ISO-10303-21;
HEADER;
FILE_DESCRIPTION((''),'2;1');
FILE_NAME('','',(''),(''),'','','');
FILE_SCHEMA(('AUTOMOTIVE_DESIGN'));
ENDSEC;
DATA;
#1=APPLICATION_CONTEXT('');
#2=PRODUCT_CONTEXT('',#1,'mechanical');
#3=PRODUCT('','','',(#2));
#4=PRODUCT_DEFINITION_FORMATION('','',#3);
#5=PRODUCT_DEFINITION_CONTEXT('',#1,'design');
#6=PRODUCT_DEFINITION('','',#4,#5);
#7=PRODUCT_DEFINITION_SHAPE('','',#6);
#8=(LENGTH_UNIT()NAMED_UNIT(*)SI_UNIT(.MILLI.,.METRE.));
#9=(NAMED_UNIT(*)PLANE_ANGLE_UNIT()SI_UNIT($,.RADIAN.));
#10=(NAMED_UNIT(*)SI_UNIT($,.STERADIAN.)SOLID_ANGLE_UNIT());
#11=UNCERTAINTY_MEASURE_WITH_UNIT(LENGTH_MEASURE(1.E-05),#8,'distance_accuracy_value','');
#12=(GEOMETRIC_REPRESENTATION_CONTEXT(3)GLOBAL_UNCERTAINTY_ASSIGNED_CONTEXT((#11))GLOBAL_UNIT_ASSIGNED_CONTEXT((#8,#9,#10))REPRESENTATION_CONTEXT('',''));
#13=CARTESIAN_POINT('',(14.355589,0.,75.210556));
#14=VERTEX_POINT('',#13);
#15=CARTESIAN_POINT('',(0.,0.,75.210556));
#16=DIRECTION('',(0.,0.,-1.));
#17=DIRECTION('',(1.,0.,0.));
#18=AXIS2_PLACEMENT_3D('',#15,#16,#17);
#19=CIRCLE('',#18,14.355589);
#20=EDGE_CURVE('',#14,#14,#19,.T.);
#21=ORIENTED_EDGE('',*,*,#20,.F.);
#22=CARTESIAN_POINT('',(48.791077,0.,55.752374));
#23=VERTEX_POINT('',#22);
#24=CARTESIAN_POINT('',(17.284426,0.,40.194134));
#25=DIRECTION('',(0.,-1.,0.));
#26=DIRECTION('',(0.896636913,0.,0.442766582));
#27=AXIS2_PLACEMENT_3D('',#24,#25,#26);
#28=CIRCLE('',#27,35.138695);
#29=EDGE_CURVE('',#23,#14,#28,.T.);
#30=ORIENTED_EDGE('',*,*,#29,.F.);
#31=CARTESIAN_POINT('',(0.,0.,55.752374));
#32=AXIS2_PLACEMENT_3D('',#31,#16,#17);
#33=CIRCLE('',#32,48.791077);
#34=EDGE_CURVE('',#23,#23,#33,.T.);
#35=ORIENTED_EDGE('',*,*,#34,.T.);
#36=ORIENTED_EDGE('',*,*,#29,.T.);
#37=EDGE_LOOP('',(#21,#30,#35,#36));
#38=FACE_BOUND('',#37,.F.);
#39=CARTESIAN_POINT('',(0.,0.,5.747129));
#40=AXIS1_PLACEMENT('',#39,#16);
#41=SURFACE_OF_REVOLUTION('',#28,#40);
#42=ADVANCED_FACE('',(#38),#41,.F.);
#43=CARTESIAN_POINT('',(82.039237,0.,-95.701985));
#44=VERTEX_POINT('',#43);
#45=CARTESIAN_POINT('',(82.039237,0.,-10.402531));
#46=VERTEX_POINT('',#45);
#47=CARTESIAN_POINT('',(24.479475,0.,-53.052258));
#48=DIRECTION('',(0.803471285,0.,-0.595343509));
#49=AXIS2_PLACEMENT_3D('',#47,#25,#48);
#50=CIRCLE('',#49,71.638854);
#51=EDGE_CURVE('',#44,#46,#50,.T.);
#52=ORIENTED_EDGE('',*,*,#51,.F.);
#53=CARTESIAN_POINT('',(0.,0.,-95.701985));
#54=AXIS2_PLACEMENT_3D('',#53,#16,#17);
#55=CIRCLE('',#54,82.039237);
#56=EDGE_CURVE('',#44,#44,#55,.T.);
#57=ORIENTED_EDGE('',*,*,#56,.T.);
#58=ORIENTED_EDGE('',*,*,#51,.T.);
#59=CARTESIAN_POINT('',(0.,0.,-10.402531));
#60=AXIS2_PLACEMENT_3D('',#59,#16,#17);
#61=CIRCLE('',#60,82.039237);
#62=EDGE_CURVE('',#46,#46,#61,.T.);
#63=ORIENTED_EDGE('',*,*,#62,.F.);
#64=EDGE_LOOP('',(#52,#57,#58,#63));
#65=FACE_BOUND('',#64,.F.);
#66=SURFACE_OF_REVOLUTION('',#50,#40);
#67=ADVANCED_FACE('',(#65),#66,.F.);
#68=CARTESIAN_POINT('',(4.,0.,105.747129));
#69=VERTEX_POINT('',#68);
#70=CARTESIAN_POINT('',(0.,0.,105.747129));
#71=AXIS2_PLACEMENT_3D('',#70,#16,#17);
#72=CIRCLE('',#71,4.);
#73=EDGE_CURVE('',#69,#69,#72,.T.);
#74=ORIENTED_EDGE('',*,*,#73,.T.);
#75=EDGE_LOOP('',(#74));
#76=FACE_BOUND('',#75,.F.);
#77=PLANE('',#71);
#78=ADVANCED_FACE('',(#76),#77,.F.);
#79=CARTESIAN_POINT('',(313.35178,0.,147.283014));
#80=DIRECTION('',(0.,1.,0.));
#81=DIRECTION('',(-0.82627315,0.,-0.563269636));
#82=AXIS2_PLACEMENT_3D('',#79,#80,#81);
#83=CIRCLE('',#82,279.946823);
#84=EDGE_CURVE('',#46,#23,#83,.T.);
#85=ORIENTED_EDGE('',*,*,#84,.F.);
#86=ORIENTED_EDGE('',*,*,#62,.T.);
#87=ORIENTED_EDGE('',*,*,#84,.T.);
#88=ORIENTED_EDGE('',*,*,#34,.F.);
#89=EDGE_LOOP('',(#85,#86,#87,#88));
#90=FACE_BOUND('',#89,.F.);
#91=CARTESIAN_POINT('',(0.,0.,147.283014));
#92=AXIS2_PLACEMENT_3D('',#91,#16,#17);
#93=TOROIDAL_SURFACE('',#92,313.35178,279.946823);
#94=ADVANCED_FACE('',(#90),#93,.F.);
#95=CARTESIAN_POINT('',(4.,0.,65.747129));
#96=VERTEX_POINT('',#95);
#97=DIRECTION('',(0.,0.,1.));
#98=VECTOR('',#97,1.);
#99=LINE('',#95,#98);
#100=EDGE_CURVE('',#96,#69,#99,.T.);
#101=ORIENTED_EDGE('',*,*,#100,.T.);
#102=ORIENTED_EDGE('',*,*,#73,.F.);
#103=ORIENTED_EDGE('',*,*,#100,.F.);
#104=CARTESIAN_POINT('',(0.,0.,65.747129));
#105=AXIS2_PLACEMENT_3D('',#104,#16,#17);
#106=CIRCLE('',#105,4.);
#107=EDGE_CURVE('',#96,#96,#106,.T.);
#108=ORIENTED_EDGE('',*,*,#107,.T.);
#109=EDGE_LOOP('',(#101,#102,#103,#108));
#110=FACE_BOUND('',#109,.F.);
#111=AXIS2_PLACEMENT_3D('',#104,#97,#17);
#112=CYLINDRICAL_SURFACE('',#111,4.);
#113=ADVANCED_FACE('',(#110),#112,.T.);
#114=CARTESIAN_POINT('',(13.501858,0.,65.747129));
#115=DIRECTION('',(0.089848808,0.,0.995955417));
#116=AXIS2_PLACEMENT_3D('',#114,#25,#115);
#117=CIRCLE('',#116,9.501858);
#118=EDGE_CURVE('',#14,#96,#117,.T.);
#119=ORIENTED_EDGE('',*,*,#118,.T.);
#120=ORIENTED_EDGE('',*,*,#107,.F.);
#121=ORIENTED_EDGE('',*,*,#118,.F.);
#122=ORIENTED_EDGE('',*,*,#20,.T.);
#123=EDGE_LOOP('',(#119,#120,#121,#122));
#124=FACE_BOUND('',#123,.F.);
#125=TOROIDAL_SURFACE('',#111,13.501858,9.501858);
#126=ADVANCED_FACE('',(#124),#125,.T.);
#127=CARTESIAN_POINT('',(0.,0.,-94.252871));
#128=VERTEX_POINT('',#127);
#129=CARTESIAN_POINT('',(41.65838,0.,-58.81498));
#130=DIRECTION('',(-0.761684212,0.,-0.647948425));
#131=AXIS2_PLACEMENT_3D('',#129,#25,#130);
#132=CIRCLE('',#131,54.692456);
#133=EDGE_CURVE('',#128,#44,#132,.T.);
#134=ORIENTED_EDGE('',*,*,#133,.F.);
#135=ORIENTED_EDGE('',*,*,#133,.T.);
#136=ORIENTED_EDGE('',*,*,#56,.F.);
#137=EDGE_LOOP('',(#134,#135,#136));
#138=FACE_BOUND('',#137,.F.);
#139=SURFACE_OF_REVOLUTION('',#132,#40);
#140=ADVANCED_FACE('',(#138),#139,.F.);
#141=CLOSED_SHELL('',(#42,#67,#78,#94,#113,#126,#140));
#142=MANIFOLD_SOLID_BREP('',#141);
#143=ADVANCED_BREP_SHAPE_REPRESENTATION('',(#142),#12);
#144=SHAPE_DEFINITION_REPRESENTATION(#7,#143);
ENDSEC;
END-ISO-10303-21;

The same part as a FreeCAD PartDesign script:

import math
import FreeCAD as App
import Part
import Sketcher

V = App.Vector

doc = App.newDocument("Part")
body = doc.addObject("PartDesign::Body", "Body")

# Sketch on XZ plane
sketch1 = body.newObject("Sketcher::SketchObject", "Sketch")
sketch1.AttachmentSupport = (doc.getObject("XZ_Plane"), [""])
sketch1.MapMode = "FlatFace"
sketch1.addGeometry(Part.LineSegment(V(4, 105.747129, 0), V(0, 105.747129, 0)), False)
sketch1.addGeometry(Part.LineSegment(V(0, 105.747129, 0), V(0, -94.252871, 0)), False)
sketch1.addGeometry(Part.ArcOfCircle(Part.Circle(V(41.65838, -58.81498, 0), V(0, 0, 1), 54.692456), math.radians(-139.6129), math.radians(-42.410997)), False)
sketch1.addGeometry(Part.ArcOfCircle(Part.Circle(V(24.479475, -53.052258, 0), V(0, 0, 1), 71.638854), math.radians(-36.537124), math.radians(36.537124)), False)
sketch1.addGeometry(Part.ArcOfCircle(Part.Circle(V(313.35178, 147.283014, 0), V(0, 0, 1), 279.946823), math.radians(-160.915804), math.radians(-145.717782)), False)
sketch1.addGeometry(Part.ArcOfCircle(Part.Circle(V(17.284426, 40.194134, 0), V(0, 0, 1), 35.138695), math.radians(26.280534), math.radians(94.781194)), False)
sketch1.addGeometry(Part.ArcOfCircle(Part.Circle(V(13.501858, 65.747129, 0), V(0, 0, 1), 9.501858), math.radians(84.845091), math.radians(179.999998)), False)
sketch1.addGeometry(Part.LineSegment(V(4, 65.747129, 0), V(4, 105.747129, 0)), False)
sketch1.addConstraint(Sketcher.Constraint("Coincident", 0, 2, 1, 1))
sketch1.addConstraint(Sketcher.Constraint("Coincident", 1, 2, 2, 1))
sketch1.addConstraint(Sketcher.Constraint("Coincident", 2, 2, 3, 1))
sketch1.addConstraint(Sketcher.Constraint("Coincident", 3, 2, 4, 2))
sketch1.addConstraint(Sketcher.Constraint("Coincident", 4, 1, 5, 1))
sketch1.addConstraint(Sketcher.Constraint("Coincident", 5, 2, 6, 1))
sketch1.addConstraint(Sketcher.Constraint("Tangent", 6, 2, 7, 1))
sketch1.addConstraint(Sketcher.Constraint("Coincident", 7, 2, 0, 1))
sketch1.addConstraint(Sketcher.Constraint("Horizontal", 0))
sketch1.addConstraint(Sketcher.Constraint("Vertical", 1))
sketch1.addConstraint(Sketcher.Constraint("Vertical", 7))
sketch1.addConstraint(Sketcher.Constraint("PointOnObject", 0, 2, -2))
sketch1.addConstraint(Sketcher.Constraint("Vertical", 2, 2, 3, 2))
sketch1.addConstraint(Sketcher.Constraint("DistanceX", 0, 2, 0, 1, 4.0))
sketch1.addConstraint(Sketcher.Constraint("DistanceY", 1, 2, 1, 1, 200.0))
sketch1.addConstraint(Sketcher.Constraint("DistanceY", 7, 1, 7, 2, 40.0))
sketch1.addConstraint(Sketcher.Constraint("Radius", 6, 9.501858))
sketch1.addConstraint(Sketcher.Constraint("Radius", 2, 54.692456))
sketch1.addConstraint(Sketcher.Constraint("Radius", 3, 71.638854))
sketch1.addConstraint(Sketcher.Constraint("Radius", 4, 279.946823))
sketch1.addConstraint(Sketcher.Constraint("Radius", 5, 35.138695))
sketch1.addConstraint(Sketcher.Constraint("DistanceX", 2, 3, 4, 3, 271.6934))
sketch1.addConstraint(Sketcher.Constraint("DistanceX", -1, 1, 2, 3, 41.65838))
sketch1.addConstraint(Sketcher.Constraint("DistanceY", 2, 3, -1, 1, 58.81498))
sketch1.addConstraint(Sketcher.Constraint("DistanceY", 3, 3, -1, 1, 53.052258))
sketch1.addConstraint(Sketcher.Constraint("DistanceY", 3, 2, -1, 1, 10.402531))
sketch1.addConstraint(Sketcher.Constraint("DistanceX", -1, 1, 5, 2, 14.355589))
sketch1.addConstraint(Sketcher.Constraint("DistanceX", 5, 3, 3, 3, 7.195049))
revolution = body.newObject("PartDesign::Revolution", "Revolution")
revolution.Profile = sketch1
revolution.ReferenceAxis = (sketch1, ["V_Axis"])
revolution.Angle = 360

doc.recompute()
